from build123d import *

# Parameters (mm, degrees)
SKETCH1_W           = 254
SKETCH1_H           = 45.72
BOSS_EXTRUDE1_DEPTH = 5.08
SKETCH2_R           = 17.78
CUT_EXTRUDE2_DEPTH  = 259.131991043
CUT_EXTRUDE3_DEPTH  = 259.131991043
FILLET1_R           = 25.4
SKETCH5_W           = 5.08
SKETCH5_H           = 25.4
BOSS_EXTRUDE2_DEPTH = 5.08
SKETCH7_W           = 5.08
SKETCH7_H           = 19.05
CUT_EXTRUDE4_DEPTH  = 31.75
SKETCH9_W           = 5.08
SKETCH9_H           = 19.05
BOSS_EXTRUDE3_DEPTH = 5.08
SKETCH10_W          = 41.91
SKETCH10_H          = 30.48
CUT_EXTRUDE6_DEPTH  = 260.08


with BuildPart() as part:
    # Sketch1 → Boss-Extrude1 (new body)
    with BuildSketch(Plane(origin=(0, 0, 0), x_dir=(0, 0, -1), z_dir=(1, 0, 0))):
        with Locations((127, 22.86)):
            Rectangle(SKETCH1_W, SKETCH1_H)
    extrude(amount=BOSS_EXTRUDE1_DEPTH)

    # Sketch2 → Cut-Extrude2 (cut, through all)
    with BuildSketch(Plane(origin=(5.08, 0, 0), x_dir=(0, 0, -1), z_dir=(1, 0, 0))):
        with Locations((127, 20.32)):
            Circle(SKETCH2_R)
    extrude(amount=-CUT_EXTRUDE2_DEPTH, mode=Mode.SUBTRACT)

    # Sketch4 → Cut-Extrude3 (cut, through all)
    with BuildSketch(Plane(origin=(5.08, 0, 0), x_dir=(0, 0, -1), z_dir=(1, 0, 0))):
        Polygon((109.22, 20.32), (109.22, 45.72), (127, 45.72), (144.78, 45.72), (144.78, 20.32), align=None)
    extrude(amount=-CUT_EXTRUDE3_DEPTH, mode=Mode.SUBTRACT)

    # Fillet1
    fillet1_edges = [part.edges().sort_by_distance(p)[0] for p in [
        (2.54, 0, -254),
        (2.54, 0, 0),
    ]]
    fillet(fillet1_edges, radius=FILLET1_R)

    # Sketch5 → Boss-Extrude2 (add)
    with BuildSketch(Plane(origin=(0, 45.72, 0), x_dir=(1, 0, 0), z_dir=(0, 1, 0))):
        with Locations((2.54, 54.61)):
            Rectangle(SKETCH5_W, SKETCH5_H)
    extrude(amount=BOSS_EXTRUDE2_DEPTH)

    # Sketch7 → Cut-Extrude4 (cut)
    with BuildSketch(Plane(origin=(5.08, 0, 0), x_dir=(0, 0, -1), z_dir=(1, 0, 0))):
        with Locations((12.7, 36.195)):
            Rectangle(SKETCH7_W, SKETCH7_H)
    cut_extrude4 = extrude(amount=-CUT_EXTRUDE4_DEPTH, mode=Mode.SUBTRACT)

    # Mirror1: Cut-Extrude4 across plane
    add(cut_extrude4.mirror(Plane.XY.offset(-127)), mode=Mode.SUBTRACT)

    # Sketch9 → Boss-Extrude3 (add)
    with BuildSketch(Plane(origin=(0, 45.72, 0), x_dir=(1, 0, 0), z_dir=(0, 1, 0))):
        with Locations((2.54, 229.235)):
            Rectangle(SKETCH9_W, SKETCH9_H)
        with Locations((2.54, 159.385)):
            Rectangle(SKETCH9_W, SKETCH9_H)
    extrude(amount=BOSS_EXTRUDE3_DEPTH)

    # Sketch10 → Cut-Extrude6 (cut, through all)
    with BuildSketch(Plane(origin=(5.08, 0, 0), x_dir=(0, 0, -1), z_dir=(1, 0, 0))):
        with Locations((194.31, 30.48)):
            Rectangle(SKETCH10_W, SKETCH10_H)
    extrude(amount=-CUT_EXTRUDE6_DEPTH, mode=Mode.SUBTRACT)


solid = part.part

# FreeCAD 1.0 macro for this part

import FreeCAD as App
import Part
import Sketcher

V = App.Vector
Q = App.Units.Quantity


def edges_at(feature, points):
    """Names of the edges that pass closest to the given points."""
    edges = feature.Shape.Edges
    near = lambda p: min(range(len(edges)), key=lambda i: edges[i].distToShape(Part.Vertex(*p))[0])
    return sorted({f"Edge{near(p) + 1}" for p in points})

doc = App.newDocument("Part")
params = doc.addObject("Spreadsheet::Sheet", "Params")
for row, (alias, value) in enumerate([
    ("sketch1_height", "10 in"),
    ("sketch1_width", "1.8 in"),
    ("pad1_length", "0.2 in"),
    ("sketch2_diameter", "1.4 in"),
    ("sketch3_width", "1 in"),
    ("sketch3_height", "1.4 in"),
    ("fillet_radius", "1 in"),
    ("sketch4_height", "1 in"),
    ("sketch4_width", "0.2 in"),
    ("pad2_length", "0.2 in"),
    ("sketch5_height", "0.2 in"),
    ("sketch5_width", "0.75 in"),
    ("pocket3_length", "1.25 in"),
    ("sketch6_width", "0.2 in"),
    ("sketch6_height", "0.75 in"),
    ("pad3_length", "0.2 in"),
    ("sketch7_width", "1.2 in"),
    ("sketch7_height", "1.65 in"),
], start=1):
    params.set(f"A{row}", alias)
    params.set(f"B{row}", "=" + value)
    params.setAlias(f"B{row}", alias)

body = doc.addObject("PartDesign::Body", "Body")

# Sketch on YZ plane
sketch1 = body.newObject("Sketcher::SketchObject", "Sketch")
sketch1.AttachmentSupport = (doc.getObject("YZ_Plane"), [""])
sketch1.MapMode = "FlatFace"
sketch1.addGeometry(Part.LineSegment(V(46, 0, 0), V(0, 0, 0)), False)
sketch1.addGeometry(Part.LineSegment(V(0, 0, 0), V(0, -254, 0)), False)
sketch1.addGeometry(Part.LineSegment(V(0, -254, 0), V(46, -254, 0)), False)
sketch1.addGeometry(Part.LineSegment(V(46, -254, 0), V(46, 0, 0)), False)
sketch1.addConstraint(Sketcher.Constraint("Coincident", 0, 2, 1, 1))
sketch1.addConstraint(Sketcher.Constraint("Coincident", 1, 2, 2, 1))
sketch1.addConstraint(Sketcher.Constraint("Coincident", 2, 2, 3, 1))
sketch1.addConstraint(Sketcher.Constraint("Coincident", 3, 2, 0, 1))
sketch1.addConstraint(Sketcher.Constraint("Horizontal", 0))
sketch1.addConstraint(Sketcher.Constraint("Vertical", 1))
sketch1.addConstraint(Sketcher.Constraint("Horizontal", 2))
sketch1.addConstraint(Sketcher.Constraint("Vertical", 3))
sketch1.addConstraint(Sketcher.Constraint("Coincident", 0, 2, -1, 1))
sketch1.addConstraint(Sketcher.Constraint("DistanceY", 1, 2, 1, 1, Q("10 in")))
sketch1.addConstraint(Sketcher.Constraint("DistanceX", 0, 2, 0, 1, Q("1.8 in")))
sketch1.setExpression("Constraints[9]", "Params.sketch1_height")
sketch1.setExpression("Constraints[10]", "Params.sketch1_width")
pad1 = body.newObject("PartDesign::Pad", "Pad")
pad1.Profile = sketch1
pad1.setExpression("Length", "Params.pad1_length")

# Sketch on YZ plane
sketch2 = body.newObject("Sketcher::SketchObject", "Sketch001")
sketch2.AttachmentSupport = (doc.getObject("YZ_Plane"), [""])
sketch2.MapMode = "FlatFace"
sketch2.AttachmentOffset = App.Placement(V(0, 0, 0.2 * 25.4), App.Rotation())
sketch2.addGeometry(Part.Circle(V(20, -127, 0), V(0, 0, 1), 18), False)
sketch2.addConstraint(Sketcher.Constraint("Diameter", 0, Q("1.4 in")))
sketch2.addConstraint(Sketcher.Constraint("DistanceY", 0, 3, -1, 1, Q("5 in")))
sketch2.addConstraint(Sketcher.Constraint("DistanceX", -1, 1, 0, 3, Q("0.8 in")))
sketch2.setExpression("Constraints[0]", "Params.sketch2_diameter")
pocket1 = body.newObject("PartDesign::Pocket", "Pocket")
pocket1.Profile = sketch2
pocket1.Type = "ThroughAll"

# Sketch on YZ plane
sketch3 = body.newObject("Sketcher::SketchObject", "Sketch002")
sketch3.AttachmentSupport = (doc.getObject("YZ_Plane"), [""])
sketch3.MapMode = "FlatFace"
sketch3.AttachmentOffset = App.Placement(V(0, 0, 0.2 * 25.4), App.Rotation())
sketch3.addGeometry(Part.LineSegment(V(46, -109, 0), V(20, -109, 0)), False)
sketch3.addGeometry(Part.LineSegment(V(20, -109, 0), V(20, -145, 0)), False)
sketch3.addGeometry(Part.LineSegment(V(20, -145, 0), V(46, -145, 0)), False)
sketch3.addGeometry(Part.LineSegment(V(46, -145, 0), V(46, -109, 0)), False)
sketch3.addConstraint(Sketcher.Constraint("Coincident", 0, 2, 1, 1))
sketch3.addConstraint(Sketcher.Constraint("Coincident", 1, 2, 2, 1))
sketch3.addConstraint(Sketcher.Constraint("Coincident", 2, 2, 3, 1))
sketch3.addConstraint(Sketcher.Constraint("Coincident", 3, 2, 0, 1))
sketch3.addConstraint(Sketcher.Constraint("Horizontal", 0))
sketch3.addConstraint(Sketcher.Constraint("Vertical", 1))
sketch3.addConstraint(Sketcher.Constraint("Horizontal", 2))
sketch3.addConstraint(Sketcher.Constraint("Vertical", 3))
sketch3.addConstraint(Sketcher.Constraint("DistanceX", 0, 2, 0, 1, Q("1 in")))
sketch3.addConstraint(Sketcher.Constraint("DistanceY", 1, 2, 1, 1, Q("1.4 in")))
sketch3.addConstraint(Sketcher.Constraint("DistanceX", -1, 1, 0, 2, Q("0.8 in")))
sketch3.addConstraint(Sketcher.Constraint("DistanceY", 0, 2, -1, 1, Q("4.3 in")))
sketch3.setExpression("Constraints[8]", "Params.sketch3_width")
sketch3.setExpression("Constraints[9]", "Params.sketch3_height")
pocket2 = body.newObject("PartDesign::Pocket", "Pocket001")
pocket2.Profile = sketch3
pocket2.Type = "ThroughAll"
doc.recompute()

fillet = body.newObject("PartDesign::Fillet", "Fillet")
fillet.Base = (pocket2, edges_at(pocket2, [(2.54, 0, -254), (2.54, 0, 0)]))
fillet.setExpression("Radius", "Params.fillet_radius")

# Sketch on XZ plane
sketch4 = body.newObject("Sketcher::SketchObject", "Sketch003")
sketch4.AttachmentSupport = (doc.getObject("XZ_Plane"), [""])
sketch4.MapMode = "FlatFace"
sketch4.AttachmentOffset = App.Placement(V(0, 0, -1.8 * 25.4), App.Rotation())
sketch4.addGeometry(Part.LineSegment(V(0, -67, 0), V(0, -42, 0)), False)
sketch4.addGeometry(Part.LineSegment(V(0, -42, 0), V(5, -42, 0)), False)
sketch4.addGeometry(Part.LineSegment(V(5, -42, 0), V(5, -67, 0)), False)
sketch4.addGeometry(Part.LineSegment(V(5, -67, 0), V(0, -67, 0)), False)
sketch4.addConstraint(Sketcher.Constraint("Coincident", 0, 2, 1, 1))
sketch4.addConstraint(Sketcher.Constraint("Coincident", 1, 2, 2, 1))
sketch4.addConstraint(Sketcher.Constraint("Coincident", 2, 2, 3, 1))
sketch4.addConstraint(Sketcher.Constraint("Coincident", 3, 2, 0, 1))
sketch4.addConstraint(Sketcher.Constraint("Vertical", 0))
sketch4.addConstraint(Sketcher.Constraint("Horizontal", 1))
sketch4.addConstraint(Sketcher.Constraint("Vertical", 2))
sketch4.addConstraint(Sketcher.Constraint("Horizontal", 3))
sketch4.addConstraint(Sketcher.Constraint("PointOnObject", 0, 2, -2))
sketch4.addConstraint(Sketcher.Constraint("DistanceY", 0, 1, 0, 2, Q("1 in")))
sketch4.addConstraint(Sketcher.Constraint("DistanceX", 1, 1, 1, 2, Q("0.2 in")))
sketch4.addConstraint(Sketcher.Constraint("DistanceY", 0, 2, -1, 1, Q("1.65 in")))
sketch4.setExpression("Constraints[9]", "Params.sketch4_height")
sketch4.setExpression("Constraints[10]", "Params.sketch4_width")
pad2 = body.newObject("PartDesign::Pad", "Pad001")
pad2.Profile = sketch4
pad2.setExpression("Length", "Params.pad2_length")
pad2.Reversed = True

# Sketch on YZ plane
sketch5 = body.newObject("Sketcher::SketchObject", "Sketch004")
sketch5.AttachmentSupport = (doc.getObject("YZ_Plane"), [""])
sketch5.MapMode = "FlatFace"
sketch5.AttachmentOffset = App.Placement(V(0, 0, 0.2 * 25.4), App.Rotation())
sketch5.addGeometry(Part.LineSegment(V(46, -10, 0), V(27, -10, 0)), False)
sketch5.addGeometry(Part.LineSegment(V(27, -10, 0), V(27, -15, 0)), False)
sketch5.addGeometry(Part.LineSegment(V(27, -15, 0), V(46, -15, 0)), False)
sketch5.addGeometry(Part.LineSegment(V(46, -15, 0), V(46, -10, 0)), False)
sketch5.addConstraint(Sketcher.Constraint("Coincident", 0, 2, 1, 1))
sketch5.addConstraint(Sketcher.Constraint("Coincident", 1, 2, 2, 1))
sketch5.addConstraint(Sketcher.Constraint("Coincident", 2, 2, 3, 1))
sketch5.addConstraint(Sketcher.Constraint("Coincident", 3, 2, 0, 1))
sketch5.addConstraint(Sketcher.Constraint("Horizontal", 0))
sketch5.addConstraint(Sketcher.Constraint("Vertical", 1))
sketch5.addConstraint(Sketcher.Constraint("Horizontal", 2))
sketch5.addConstraint(Sketcher.Constraint("Vertical", 3))
sketch5.addConstraint(Sketcher.Constraint("DistanceY", 1, 2, 1, 1, Q("0.2 in")))
sketch5.addConstraint(Sketcher.Constraint("DistanceX", 0, 2, 0, 1, Q("0.75 in")))
sketch5.addConstraint(Sketcher.Constraint("DistanceY", 0, 2, -1, 1, Q("0.4 in")))
sketch5.addConstraint(Sketcher.Constraint("DistanceX", -1, 1, 2, 2, Q("1.8 in")))
sketch5.setExpression("Constraints[8]", "Params.sketch5_height")
sketch5.setExpression("Constraints[9]", "Params.sketch5_width")
pocket3 = body.newObject("PartDesign::Pocket", "Pocket002")
pocket3.Profile = sketch5
pocket3.setExpression("Length", "Params.pocket3_length")
doc.recompute()

datumplane = body.newObject("PartDesign::Plane", "DatumPlane")
datumplane.AttachmentSupport = (doc.getObject("XY_Plane"), [""])
datumplane.MapMode = "FlatFace"
datumplane.AttachmentOffset = App.Placement(V(0, 0, -5 * 25.4), App.Rotation())
mirrored = body.newObject("PartDesign::Mirrored", "Mirrored")
mirrored.Originals = [pocket3]
mirrored.MirrorPlane = (datumplane, [""])
body.Tip = mirrored

# Sketch on XZ plane
sketch6 = body.newObject("Sketcher::SketchObject", "Sketch005")
sketch6.AttachmentSupport = (doc.getObject("XZ_Plane"), [""])
sketch6.MapMode = "FlatFace"
sketch6.AttachmentOffset = App.Placement(V(0, 0, -1.8 * 25.4), App.Rotation())
sketch6.addGeometry(Part.LineSegment(V(0, -239, 0), V(0, -220, 0)), False)
sketch6.addGeometry(Part.LineSegment(V(0, -220, 0), V(5, -220, 0)), False)
sketch6.addGeometry(Part.LineSegment(V(5, -220, 0), V(5, -239, 0)), False)
sketch6.addGeometry(Part.LineSegment(V(5, -239, 0), V(0, -239, 0)), False)
sketch6.addGeometry(Part.LineSegment(V(0, -169, 0), V(0, -150, 0)), False)
sketch6.addGeometry(Part.LineSegment(V(0, -150, 0), V(5, -150, 0)), False)
sketch6.addGeometry(Part.LineSegment(V(5, -150, 0), V(5, -169, 0)), False)
sketch6.addGeometry(Part.LineSegment(V(5, -169, 0), V(0, -169, 0)), False)
sketch6.addConstraint(Sketcher.Constraint("Coincident", 0, 2, 1, 1))
sketch6.addConstraint(Sketcher.Constraint("Coincident", 1, 2, 2, 1))
sketch6.addConstraint(Sketcher.Constraint("Coincident", 2, 2, 3, 1))
sketch6.addConstraint(Sketcher.Constraint("Coincident", 3, 2, 0, 1))
sketch6.addConstraint(Sketcher.Constraint("Coincident", 4, 2, 5, 1))
sketch6.addConstraint(Sketcher.Constraint("Coincident", 5, 2, 6, 1))
sketch6.addConstraint(Sketcher.Constraint("Coincident", 6, 2, 7, 1))
sketch6.addConstraint(Sketcher.Constraint("Coincident", 7, 2, 4, 1))
sketch6.addConstraint(Sketcher.Constraint("Vertical", 0))
sketch6.addConstraint(Sketcher.Constraint("Horizontal", 1))
sketch6.addConstraint(Sketcher.Constraint("Vertical", 2))
sketch6.addConstraint(Sketcher.Constraint("Horizontal", 3))
sketch6.addConstraint(Sketcher.Constraint("Vertical", 4))
sketch6.addConstraint(Sketcher.Constraint("Horizontal", 5))
sketch6.addConstraint(Sketcher.Constraint("Vertical", 6))
sketch6.addConstraint(Sketcher.Constraint("Horizontal", 7))
sketch6.addConstraint(Sketcher.Constraint("PointOnObject", 0, 2, -2))
sketch6.addConstraint(Sketcher.Constraint("PointOnObject", 4, 2, -2))
sketch6.addConstraint(Sketcher.Constraint("Vertical", 2, 2, 5, 2))
sketch6.addConstraint(Sketcher.Constraint("Equal", 2, 4))
sketch6.addConstraint(Sketcher.Constraint("DistanceX", 1, 1, 1, 2, Q("0.2 in")))
sketch6.addConstraint(Sketcher.Constraint("DistanceY", 1, 2, 6, 2, Q("2 in")))
sketch6.addConstraint(Sketcher.Constraint("DistanceY", 0, 1, 0, 2, Q("0.75 in")))
sketch6.addConstraint(Sketcher.Constraint("DistanceY", 2, 2, -1, 1, Q("9.4 in")))
sketch6.setExpression("Constraints[20]", "Params.sketch6_width")
sketch6.setExpression("Constraints[22]", "Params.sketch6_height")
pad3 = body.newObject("PartDesign::Pad", "Pad002")
pad3.Profile = sketch6
pad3.setExpression("Length", "Params.pad3_length")
pad3.Reversed = True

# Sketch on YZ plane
sketch7 = body.newObject("Sketcher::SketchObject", "Sketch006")
sketch7.AttachmentSupport = (doc.getObject("YZ_Plane"), [""])
sketch7.MapMode = "FlatFace"
sketch7.AttachmentOffset = App.Placement(V(0, 0, 0.2 * 25.4), App.Rotation())
sketch7.addGeometry(Part.LineSegment(V(46, -173, 0), V(15, -173, 0)), False)
sketch7.addGeometry(Part.LineSegment(V(15, -173, 0), V(15, -215, 0)), False)
sketch7.addGeometry(Part.LineSegment(V(15, -215, 0), V(46, -215, 0)), False)
sketch7.addGeometry(Part.LineSegment(V(46, -215, 0), V(46, -173, 0)), False)
sketch7.addConstraint(Sketcher.Constraint("Coincident", 0, 2, 1, 1))
sketch7.addConstraint(Sketcher.Constraint("Coincident", 1, 2, 2, 1))
sketch7.addConstraint(Sketcher.Constraint("Coincident", 2, 2, 3, 1))
sketch7.addConstraint(Sketcher.Constraint("Coincident", 3, 2, 0, 1))
sketch7.addConstraint(Sketcher.Constraint("Horizontal", 0))
sketch7.addConstraint(Sketcher.Constraint("Vertical", 1))
sketch7.addConstraint(Sketcher.Constraint("Horizontal", 2))
sketch7.addConstraint(Sketcher.Constraint("Vertical", 3))
sketch7.addConstraint(Sketcher.Constraint("DistanceX", 0, 2, 0, 1, Q("1.2 in")))
sketch7.addConstraint(Sketcher.Constraint("DistanceY", 1, 2, 1, 1, Q("1.65 in")))
sketch7.addConstraint(Sketcher.Constraint("DistanceX", -1, 1, 0, 2, Q("0.6 in")))
sketch7.addConstraint(Sketcher.Constraint("DistanceY", 0, 2, -1, 1, Q("6.825 in")))
sketch7.setExpression("Constraints[8]", "Params.sketch7_width")
sketch7.setExpression("Constraints[9]", "Params.sketch7_height")
pocket4 = body.newObject("PartDesign::Pocket", "Pocket003")
pocket4.Profile = sketch7
pocket4.Type = "ThroughAll"

doc.recompute()
